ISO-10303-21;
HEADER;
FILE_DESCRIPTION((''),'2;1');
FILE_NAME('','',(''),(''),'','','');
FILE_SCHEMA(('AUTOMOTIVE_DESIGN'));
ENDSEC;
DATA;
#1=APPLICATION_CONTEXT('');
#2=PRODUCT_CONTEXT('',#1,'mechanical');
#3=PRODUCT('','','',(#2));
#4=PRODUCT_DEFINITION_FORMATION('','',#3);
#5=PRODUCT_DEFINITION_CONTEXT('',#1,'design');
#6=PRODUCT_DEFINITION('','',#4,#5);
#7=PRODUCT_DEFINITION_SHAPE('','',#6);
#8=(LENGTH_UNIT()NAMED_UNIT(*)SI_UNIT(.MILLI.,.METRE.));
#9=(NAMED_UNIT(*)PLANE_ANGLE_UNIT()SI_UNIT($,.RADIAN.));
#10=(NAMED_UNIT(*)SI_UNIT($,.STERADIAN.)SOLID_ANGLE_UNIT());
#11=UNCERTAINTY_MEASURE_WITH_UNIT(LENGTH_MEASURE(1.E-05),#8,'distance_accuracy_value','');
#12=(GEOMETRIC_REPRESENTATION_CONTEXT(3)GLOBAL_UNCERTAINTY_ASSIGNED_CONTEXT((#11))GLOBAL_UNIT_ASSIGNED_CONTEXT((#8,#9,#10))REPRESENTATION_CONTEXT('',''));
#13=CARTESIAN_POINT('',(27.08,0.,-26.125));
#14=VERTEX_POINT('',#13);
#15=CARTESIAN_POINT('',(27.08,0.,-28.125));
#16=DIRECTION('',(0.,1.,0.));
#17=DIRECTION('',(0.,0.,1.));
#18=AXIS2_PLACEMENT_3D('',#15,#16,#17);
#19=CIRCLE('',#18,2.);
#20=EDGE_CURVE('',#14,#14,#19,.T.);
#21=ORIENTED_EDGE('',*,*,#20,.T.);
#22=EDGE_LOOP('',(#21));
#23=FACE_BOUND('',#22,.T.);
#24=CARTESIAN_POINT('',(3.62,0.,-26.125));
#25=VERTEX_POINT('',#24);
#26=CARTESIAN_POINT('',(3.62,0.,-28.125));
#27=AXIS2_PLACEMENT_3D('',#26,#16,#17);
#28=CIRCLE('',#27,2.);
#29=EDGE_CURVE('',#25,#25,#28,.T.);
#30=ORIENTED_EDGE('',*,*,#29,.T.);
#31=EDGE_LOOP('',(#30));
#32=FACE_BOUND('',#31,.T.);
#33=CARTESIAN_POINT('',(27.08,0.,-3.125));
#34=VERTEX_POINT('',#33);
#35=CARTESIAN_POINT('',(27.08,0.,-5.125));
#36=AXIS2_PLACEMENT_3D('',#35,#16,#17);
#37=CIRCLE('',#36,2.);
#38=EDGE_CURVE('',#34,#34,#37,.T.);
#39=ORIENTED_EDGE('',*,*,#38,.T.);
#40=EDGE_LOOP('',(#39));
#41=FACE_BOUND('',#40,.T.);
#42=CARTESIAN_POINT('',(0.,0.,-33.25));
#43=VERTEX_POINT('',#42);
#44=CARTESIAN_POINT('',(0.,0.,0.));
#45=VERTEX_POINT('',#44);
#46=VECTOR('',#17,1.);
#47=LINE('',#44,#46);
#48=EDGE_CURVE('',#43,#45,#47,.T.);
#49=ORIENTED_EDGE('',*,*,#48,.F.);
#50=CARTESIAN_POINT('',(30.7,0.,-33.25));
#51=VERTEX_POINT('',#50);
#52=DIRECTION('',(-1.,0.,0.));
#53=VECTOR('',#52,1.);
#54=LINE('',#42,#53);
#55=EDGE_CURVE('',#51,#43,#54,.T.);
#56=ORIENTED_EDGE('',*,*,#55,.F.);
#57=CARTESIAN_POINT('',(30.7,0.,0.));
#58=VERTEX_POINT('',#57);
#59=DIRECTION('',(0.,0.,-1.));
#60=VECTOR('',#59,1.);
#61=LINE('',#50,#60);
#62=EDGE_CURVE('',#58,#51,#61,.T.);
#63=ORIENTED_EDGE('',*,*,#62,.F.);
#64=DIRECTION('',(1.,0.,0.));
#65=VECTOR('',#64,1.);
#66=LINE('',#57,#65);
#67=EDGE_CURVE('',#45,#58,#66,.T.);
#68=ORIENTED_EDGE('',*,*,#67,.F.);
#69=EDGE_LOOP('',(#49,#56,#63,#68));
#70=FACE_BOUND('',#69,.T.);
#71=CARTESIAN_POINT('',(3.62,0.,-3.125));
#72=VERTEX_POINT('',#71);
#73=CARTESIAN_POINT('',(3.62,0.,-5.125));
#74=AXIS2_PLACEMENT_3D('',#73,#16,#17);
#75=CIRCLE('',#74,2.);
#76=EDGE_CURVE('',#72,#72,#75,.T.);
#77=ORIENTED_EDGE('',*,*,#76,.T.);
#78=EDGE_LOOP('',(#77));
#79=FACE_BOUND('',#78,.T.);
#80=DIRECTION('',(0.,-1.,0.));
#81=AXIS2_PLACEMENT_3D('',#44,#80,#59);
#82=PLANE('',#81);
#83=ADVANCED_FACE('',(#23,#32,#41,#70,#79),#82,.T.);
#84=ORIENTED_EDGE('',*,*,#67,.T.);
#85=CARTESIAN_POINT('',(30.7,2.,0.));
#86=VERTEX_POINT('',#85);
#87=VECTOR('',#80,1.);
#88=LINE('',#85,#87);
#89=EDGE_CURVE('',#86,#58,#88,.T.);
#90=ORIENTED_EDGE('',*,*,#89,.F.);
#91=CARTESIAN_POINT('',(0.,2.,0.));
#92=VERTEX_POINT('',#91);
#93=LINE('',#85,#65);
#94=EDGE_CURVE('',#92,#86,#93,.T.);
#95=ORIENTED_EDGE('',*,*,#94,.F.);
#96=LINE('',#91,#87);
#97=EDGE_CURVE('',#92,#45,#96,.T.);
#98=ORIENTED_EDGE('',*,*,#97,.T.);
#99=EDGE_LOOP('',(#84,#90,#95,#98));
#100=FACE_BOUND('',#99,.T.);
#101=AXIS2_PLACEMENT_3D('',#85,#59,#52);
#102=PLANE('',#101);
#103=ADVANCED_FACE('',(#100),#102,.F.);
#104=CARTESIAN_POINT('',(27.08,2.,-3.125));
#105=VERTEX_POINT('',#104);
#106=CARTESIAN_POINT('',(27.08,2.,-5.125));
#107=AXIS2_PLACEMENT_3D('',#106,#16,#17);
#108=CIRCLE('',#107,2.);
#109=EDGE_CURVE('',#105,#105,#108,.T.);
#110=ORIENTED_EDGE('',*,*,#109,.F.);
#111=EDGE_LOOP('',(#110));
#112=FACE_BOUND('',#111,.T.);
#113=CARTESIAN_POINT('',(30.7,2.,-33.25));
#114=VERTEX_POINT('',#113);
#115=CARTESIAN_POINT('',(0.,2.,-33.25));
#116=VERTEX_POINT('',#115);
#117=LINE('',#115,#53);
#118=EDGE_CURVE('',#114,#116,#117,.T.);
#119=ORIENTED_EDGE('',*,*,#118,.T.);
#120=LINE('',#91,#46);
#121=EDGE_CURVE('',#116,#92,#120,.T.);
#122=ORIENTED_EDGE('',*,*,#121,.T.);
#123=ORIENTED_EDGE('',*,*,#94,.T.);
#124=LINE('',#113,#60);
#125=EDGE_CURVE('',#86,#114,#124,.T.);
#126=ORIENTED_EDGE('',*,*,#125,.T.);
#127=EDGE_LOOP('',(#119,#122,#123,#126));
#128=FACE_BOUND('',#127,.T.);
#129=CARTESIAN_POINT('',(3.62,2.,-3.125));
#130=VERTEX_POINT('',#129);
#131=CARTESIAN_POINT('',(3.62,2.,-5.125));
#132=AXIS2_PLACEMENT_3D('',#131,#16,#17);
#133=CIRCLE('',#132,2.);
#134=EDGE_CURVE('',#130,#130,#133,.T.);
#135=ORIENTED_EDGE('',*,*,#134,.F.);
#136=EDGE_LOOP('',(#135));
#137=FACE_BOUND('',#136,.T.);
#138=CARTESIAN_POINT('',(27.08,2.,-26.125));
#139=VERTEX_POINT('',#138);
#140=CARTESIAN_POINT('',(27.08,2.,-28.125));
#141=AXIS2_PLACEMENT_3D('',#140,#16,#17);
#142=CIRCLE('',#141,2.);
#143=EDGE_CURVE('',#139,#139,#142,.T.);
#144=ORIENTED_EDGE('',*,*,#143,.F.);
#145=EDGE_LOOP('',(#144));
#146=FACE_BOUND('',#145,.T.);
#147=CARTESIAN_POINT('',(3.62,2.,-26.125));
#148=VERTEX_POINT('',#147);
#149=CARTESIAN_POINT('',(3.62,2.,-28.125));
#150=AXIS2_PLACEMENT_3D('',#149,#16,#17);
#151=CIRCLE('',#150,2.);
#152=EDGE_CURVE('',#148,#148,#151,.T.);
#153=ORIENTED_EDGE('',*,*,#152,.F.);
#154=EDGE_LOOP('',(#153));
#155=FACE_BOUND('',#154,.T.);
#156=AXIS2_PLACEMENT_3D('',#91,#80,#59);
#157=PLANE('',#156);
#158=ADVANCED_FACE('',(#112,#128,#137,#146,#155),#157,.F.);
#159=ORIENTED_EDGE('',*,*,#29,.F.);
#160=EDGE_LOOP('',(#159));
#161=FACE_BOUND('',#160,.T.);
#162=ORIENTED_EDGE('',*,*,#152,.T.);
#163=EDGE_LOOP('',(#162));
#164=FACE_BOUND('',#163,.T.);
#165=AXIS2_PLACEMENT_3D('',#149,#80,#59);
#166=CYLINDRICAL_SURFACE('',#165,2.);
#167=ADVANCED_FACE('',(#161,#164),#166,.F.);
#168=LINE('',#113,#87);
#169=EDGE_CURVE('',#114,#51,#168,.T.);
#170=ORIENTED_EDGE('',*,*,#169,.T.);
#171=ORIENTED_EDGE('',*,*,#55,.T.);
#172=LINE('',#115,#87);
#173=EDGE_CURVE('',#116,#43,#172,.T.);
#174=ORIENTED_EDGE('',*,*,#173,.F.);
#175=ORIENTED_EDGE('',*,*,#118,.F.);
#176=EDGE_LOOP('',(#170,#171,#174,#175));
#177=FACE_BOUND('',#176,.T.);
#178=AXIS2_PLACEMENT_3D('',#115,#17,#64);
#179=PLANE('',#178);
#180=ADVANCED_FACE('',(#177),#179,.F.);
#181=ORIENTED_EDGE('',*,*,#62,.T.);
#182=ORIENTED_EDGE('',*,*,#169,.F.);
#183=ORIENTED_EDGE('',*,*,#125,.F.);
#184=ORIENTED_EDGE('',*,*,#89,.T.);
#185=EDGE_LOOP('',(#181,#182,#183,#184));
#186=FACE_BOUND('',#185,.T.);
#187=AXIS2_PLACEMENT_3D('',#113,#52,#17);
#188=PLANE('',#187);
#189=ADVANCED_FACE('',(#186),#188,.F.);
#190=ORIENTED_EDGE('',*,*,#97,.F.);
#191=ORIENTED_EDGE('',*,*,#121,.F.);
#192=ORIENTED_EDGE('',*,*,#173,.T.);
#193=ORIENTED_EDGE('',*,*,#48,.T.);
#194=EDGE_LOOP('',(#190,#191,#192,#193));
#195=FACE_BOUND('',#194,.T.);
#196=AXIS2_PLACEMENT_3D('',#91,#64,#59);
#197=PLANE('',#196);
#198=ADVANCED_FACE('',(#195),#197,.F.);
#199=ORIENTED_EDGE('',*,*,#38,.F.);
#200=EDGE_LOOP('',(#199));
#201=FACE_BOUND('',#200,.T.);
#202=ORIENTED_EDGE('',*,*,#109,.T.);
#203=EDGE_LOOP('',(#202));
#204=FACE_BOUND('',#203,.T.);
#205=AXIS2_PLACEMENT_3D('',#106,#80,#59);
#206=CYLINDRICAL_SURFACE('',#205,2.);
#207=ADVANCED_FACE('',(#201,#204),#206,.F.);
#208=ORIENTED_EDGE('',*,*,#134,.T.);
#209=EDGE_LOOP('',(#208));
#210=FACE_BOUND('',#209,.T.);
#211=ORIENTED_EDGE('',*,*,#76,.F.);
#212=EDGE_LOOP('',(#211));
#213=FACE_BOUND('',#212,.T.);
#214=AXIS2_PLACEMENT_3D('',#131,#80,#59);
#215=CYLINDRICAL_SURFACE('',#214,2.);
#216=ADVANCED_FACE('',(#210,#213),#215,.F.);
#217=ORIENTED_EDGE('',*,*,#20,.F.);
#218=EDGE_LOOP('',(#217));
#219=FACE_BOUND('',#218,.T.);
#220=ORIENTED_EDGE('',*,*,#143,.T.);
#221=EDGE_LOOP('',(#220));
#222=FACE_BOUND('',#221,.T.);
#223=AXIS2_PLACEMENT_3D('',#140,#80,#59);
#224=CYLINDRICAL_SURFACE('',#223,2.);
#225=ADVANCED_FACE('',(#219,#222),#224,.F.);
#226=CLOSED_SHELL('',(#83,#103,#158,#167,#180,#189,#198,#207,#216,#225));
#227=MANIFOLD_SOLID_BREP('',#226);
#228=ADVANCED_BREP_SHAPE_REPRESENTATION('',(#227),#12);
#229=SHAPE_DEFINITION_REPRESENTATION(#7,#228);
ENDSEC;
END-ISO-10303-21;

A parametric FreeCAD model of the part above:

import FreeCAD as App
import Part
import Sketcher
Q = App.Units.Quantity


def add_polygon(sketch, points):
    """Adds a closed chain of lines whose ends are joined by coincident constraints."""
    first, n = sketch.GeometryCount, len(points)
    for a, b in zip(points, points[1:] + points[:1]):
        sketch.addGeometry(Part.LineSegment(App.Vector(*a, 0), App.Vector(*b, 0)), False)
    for i in range(n):
        sketch.addConstraint(Sketcher.Constraint("Coincident", first + i, 2, first + (i + 1) % n, 1))

doc = App.newDocument("Part")
body = doc.addObject("PartDesign::Body", "Body")

sketch1 = body.newObject("Sketcher::SketchObject", "Sketch")
sketch1.AttachmentSupport = (doc.getObject("XZ_Plane"), [""])
sketch1.MapMode = "FlatFace"
add_polygon(sketch1, [(0, -33.2), (0, 0), (30.7, 0), (30.7, -33.2)])
sketch1.addGeometry(Part.Circle(App.Vector(3.6, -5.1, 0), App.Vector(0, 0, 1), 2), False)
sketch1.addGeometry(Part.Circle(App.Vector(27.1, -5.1, 0), App.Vector(0, 0, 1), 2), False)
sketch1.addGeometry(Part.Circle(App.Vector(3.6, -28.1, 0), App.Vector(0, 0, 1), 2), False)
sketch1.addGeometry(Part.Circle(App.Vector(27.1, -28.1, 0), App.Vector(0, 0, 1), 2), False)
sketch1.addConstraint(Sketcher.Constraint("Vertical", 0))
sketch1.addConstraint(Sketcher.Constraint("Horizontal", 1))
sketch1.addConstraint(Sketcher.Constraint("Vertical", 2))
sketch1.addConstraint(Sketcher.Constraint("Horizontal", 3))
sketch1.addConstraint(Sketcher.Constraint("Coincident", 0, 2, -1, 1))
sketch1.addConstraint(Sketcher.Constraint("Equal", 4, 5))
sketch1.addConstraint(Sketcher.Constraint("Equal", 5, 6))
sketch1.addConstraint(Sketcher.Constraint("Equal", 6, 7))
sketch1.addConstraint(Sketcher.Constraint("Horizontal", 4, 3, 5, 3))
sketch1.addConstraint(Sketcher.Constraint("Horizontal", 6, 3, 7, 3))
sketch1.addConstraint(Sketcher.Constraint("Vertical", 4, 3, 6, 3))
sketch1.addConstraint(Sketcher.Constraint("Vertical", 5, 3, 7, 3))
sketch1.addConstraint(Sketcher.Constraint("Diameter", 4, Q("4 mm")))
sketch1.addConstraint(Sketcher.Constraint("DistanceX", 1, 1, 1, 2, Q("30.7 mm")))
sketch1.addConstraint(Sketcher.Constraint("DistanceY", 6, 3, 4, 3, Q("23 mm")))
sketch1.addConstraint(Sketcher.Constraint("DistanceY", 0, 1, 0, 2, Q("33.25 mm")))
sketch1.addConstraint(Sketcher.Constraint("DistanceX", -1, 1, 4, 3, Q("3.62 mm")))
sketch1.addConstraint(Sketcher.Constraint("DistanceX", -1, 1, 5, 3, Q("27.08 mm")))
sketch1.addConstraint(Sketcher.Constraint("DistanceY", 4, 3, -1, 1, Q("5.125 mm")))
pad1 = body.newObject("PartDesign::Pad", "Pad")
pad1.Profile = sketch1
pad1.Length = 2
pad1.Reversed = True

doc.recompute()
